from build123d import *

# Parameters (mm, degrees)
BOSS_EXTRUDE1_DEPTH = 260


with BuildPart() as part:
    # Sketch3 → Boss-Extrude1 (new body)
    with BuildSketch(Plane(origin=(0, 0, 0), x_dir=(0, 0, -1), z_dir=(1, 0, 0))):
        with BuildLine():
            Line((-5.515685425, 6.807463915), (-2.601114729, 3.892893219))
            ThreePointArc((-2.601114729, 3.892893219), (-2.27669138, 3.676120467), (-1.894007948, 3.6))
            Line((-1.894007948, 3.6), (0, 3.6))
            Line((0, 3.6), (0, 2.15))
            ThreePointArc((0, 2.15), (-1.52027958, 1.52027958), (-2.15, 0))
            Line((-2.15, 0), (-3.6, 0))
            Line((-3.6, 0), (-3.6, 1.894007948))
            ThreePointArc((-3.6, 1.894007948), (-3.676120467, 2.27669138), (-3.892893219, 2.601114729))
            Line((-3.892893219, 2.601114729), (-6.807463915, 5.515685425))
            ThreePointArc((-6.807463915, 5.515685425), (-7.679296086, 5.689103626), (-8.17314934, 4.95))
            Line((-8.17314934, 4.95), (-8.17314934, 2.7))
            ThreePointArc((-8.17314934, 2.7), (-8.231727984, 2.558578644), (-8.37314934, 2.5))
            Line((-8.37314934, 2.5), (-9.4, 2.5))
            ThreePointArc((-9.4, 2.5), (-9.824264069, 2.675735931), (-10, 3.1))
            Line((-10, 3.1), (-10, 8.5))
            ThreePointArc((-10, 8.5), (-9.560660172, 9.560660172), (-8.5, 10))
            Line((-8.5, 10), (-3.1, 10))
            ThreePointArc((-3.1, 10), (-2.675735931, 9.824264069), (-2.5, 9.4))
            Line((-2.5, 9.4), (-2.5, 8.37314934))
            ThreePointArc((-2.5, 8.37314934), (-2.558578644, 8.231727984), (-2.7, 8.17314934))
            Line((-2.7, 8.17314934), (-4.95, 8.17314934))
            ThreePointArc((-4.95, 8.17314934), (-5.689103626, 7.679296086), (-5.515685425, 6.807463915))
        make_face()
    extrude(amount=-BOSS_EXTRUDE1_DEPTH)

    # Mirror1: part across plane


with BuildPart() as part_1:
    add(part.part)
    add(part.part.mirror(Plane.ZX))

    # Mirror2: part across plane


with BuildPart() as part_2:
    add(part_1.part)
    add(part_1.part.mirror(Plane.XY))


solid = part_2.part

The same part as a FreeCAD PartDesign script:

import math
import FreeCAD as App
import Part
import Sketcher
from FreeCAD import Vector
Q = App.Units.Quantity

doc = App.newDocument("Part")
body = doc.addObject("PartDesign::Body", "Body")

# Sketch on YZ plane
sketch1 = body.newObject("Sketcher::SketchObject", "Sketch")
sketch1.AttachmentSupport = (doc.getObject("YZ_Plane"), [""])
sketch1.MapMode = "FlatFace"
sketch1.addGeometry([
    Part.LineSegment(Vector(3.89, 2.6, 0), Vector(6.81, 5.52, 0)),  # 0
    Part.ArcOfCircle(Part.Circle(Vector(7.37, 4.95, 0), Vector(0, 0, 1), 0.8), math.radians(0), math.radians(135)),  # 1
    Part.LineSegment(Vector(8.17, 4.95, 0), Vector(8.17, 2.7, 0)),  # 2
    Part.ArcOfCircle(Part.Circle(Vector(8.37, 2.7, 0), Vector(0, 0, 1), 0.2), math.radians(-180), math.radians(-90)),  # 3
    Part.LineSegment(Vector(8.37, 2.5, 0), Vector(9.4, 2.5, 0)),  # 4
    Part.ArcOfCircle(Part.Circle(Vector(9.4, 3.1, 0), Vector(0, 0, 1), 0.6), math.radians(-90), math.radians(0)),  # 5
    Part.LineSegment(Vector(10, 3.1, 0), Vector(10, 8.5, 0)),  # 6
    Part.ArcOfCircle(Part.Circle(Vector(8.5, 8.5, 0), Vector(0, 0, 1), 1.5), math.radians(0), math.radians(90)),  # 7
    Part.LineSegment(Vector(8.5, 10, 0), Vector(3.1, 10, 0)),  # 8
    Part.ArcOfCircle(Part.Circle(Vector(3.1, 9.4, 0), Vector(0, 0, 1), 0.6), math.radians(90), math.radians(180)),  # 9
    Part.LineSegment(Vector(2.5, 9.4, 0), Vector(2.5, 8.37, 0)),  # 10
    Part.ArcOfCircle(Part.Circle(Vector(2.7, 8.37, 0), Vector(0, 0, 1), 0.2), math.radians(-180), math.radians(-90)),  # 11
    Part.LineSegment(Vector(2.7, 8.17, 0), Vector(4.95, 8.17, 0)),  # 12
    Part.ArcOfCircle(Part.Circle(Vector(4.95, 7.37, 0), Vector(0, 0, 1), 0.8), math.radians(-45), math.radians(90)),  # 13
    Part.LineSegment(Vector(5.52, 6.81, 0), Vector(2.6, 3.89, 0)),  # 14
    Part.ArcOfCircle(Part.Circle(Vector(1.89, 4.6, 0), Vector(0, 0, 1), 1), math.radians(-90), math.radians(-45)),  # 15
    Part.LineSegment(Vector(1.89, 3.6, 0), Vector(0, 3.6, 0)),  # 16
    Part.LineSegment(Vector(0, 3.6, 0), Vector(0, 2.15, 0)),  # 17
    Part.ArcOfCircle(Part.Circle(Vector(0, 0, 0), Vector(0, 0, 1), 2.15), math.radians(0), math.radians(90)),  # 18
    Part.LineSegment(Vector(2.15, 0, 0), Vector(3.6, 0, 0)),  # 19
    Part.LineSegment(Vector(3.6, 0, 0), Vector(3.6, 1.89, 0)),  # 20
    Part.ArcOfCircle(Part.Circle(Vector(4.6, 1.89, 0), Vector(0, 0, 1), 1), math.radians(135), math.radians(180)),  # 21
], False)
sketch1.addConstraint([
    Sketcher.Constraint("Tangent", 0, 2, 1, 2),
    Sketcher.Constraint("Tangent", 1, 1, 2, 1),
    Sketcher.Constraint("Tangent", 2, 2, 3, 1),
    Sketcher.Constraint("Tangent", 3, 2, 4, 1),
    Sketcher.Constraint("Tangent", 4, 2, 5, 1),
    Sketcher.Constraint("Tangent", 5, 2, 6, 1),
    Sketcher.Constraint("Tangent", 6, 2, 7, 1),
    Sketcher.Constraint("Tangent", 7, 2, 8, 1),
    Sketcher.Constraint("Tangent", 8, 2, 9, 1),
    Sketcher.Constraint("Tangent", 9, 2, 10, 1),
    Sketcher.Constraint("Tangent", 10, 2, 11, 1),
    Sketcher.Constraint("Tangent", 11, 2, 12, 1),
    Sketcher.Constraint("Tangent", 12, 2, 13, 2),
    Sketcher.Constraint("Tangent", 13, 1, 14, 1),
    Sketcher.Constraint("Tangent", 14, 2, 15, 2),
    Sketcher.Constraint("Tangent", 15, 1, 16, 1),
    Sketcher.Constraint("Coincident", 16, 2, 17, 1),
    Sketcher.Constraint("Coincident", 17, 2, 18, 2),
    Sketcher.Constraint("Coincident", 18, 1, 19, 1),
    Sketcher.Constraint("Coincident", 19, 2, 20, 1),
    Sketcher.Constraint("Tangent", 20, 2, 21, 2),
    Sketcher.Constraint("Tangent", 21, 1, 0, 1),
    Sketcher.Constraint("Vertical", 2),
    Sketcher.Constraint("Horizontal", 4),
    Sketcher.Constraint("Vertical", 6),
    Sketcher.Constraint("Horizontal", 8),
    Sketcher.Constraint("Vertical", 10),
    Sketcher.Constraint("Horizontal", 12),
    Sketcher.Constraint("Horizontal", 16),
    Sketcher.Constraint("Vertical", 17),
    Sketcher.Constraint("Horizontal", 19),
    Sketcher.Constraint("Vertical", 20),
    Sketcher.Constraint("Coincident", 18, 3, -1, 1),
    Sketcher.Constraint("Equal", 5, 9),
    Sketcher.Constraint("Equal", 3, 11),
    Sketcher.Constraint("Equal", 1, 13),
    Sketcher.Constraint("Equal", 15, 21),
    Sketcher.Constraint("PointOnObject", 16, 2, -2),
    Sketcher.Constraint("PointOnObject", 18, 1, -1),
    Sketcher.Constraint("Parallel", 0, 14),
    Sketcher.Constraint("Equal", 12, 2),
    Sketcher.Constraint("Equal", 8, 6),
    Sketcher.Constraint("Equal", 4, 10),
    Sketcher.Constraint("Equal", 19, 17),
    Sketcher.Constraint("Equal", 16, 20),
    Sketcher.Constraint("Equal", 0, 14),
    Sketcher.Constraint("Radius", 15, Q("1 mm")),
    Sketcher.Constraint("Radius", 1, Q("0.8 mm")),
    Sketcher.Constraint("Radius", 3, Q("0.2 mm")),
    Sketcher.Constraint("Radius", 5, Q("0.6 mm")),
    Sketcher.Constraint("Radius", 7, Q("1.5 mm")),
    Sketcher.Constraint("Radius", 18, Q("2.15 mm")),
    Sketcher.Constraint("DistanceX", 8, 2, 8, 1, Q("5.4 mm")),
    Sketcher.Constraint("DistanceX", -1, 1, 5, 2, Q("10 mm")),
    Sketcher.Constraint("DistanceX", 12, 1, 12, 2, Q("2.25 mm")),
    Sketcher.Constraint("DistanceX", 19, 1, 19, 2, Q("1.45 mm")),
    Sketcher.Constraint("DistanceX", 4, 1, 4, 2, Q("1.026851 mm")),
])
pad1 = body.newObject("PartDesign::Pad", "Pad")
pad1.Profile = sketch1
pad1.Length = 260
pad1.Reversed = True
body2 = doc.addObject("PartDesign::Body", "Body001")
doc.recompute()

body2.BaseFeature = body
doc.recompute()

mirroring = doc.addObject("Part::Mirroring", "Mirroring")
mirroring.Source = body
mirroring.Base = Vector(0, 0, 0)
mirroring.Normal = Vector(0, 1, 0)
body3 = doc.addObject("PartDesign::Body", "Body002")
body3.BaseFeature = mirroring
boolean = body2.newObject("PartDesign::Boolean", "Boolean")
boolean.Type = "Fuse"
boolean.addObjects([body3])
doc.recompute()
body4 = doc.addObject("PartDesign::Body", "Body003")
doc.recompute()

body4.BaseFeature = body2
doc.recompute()

mirroring2 = doc.addObject("Part::Mirroring", "Mirroring001")
mirroring2.Source = body2
mirroring2.Base = Vector(0, 0, 0)
mirroring2.Normal = Vector(0, 0, 1)
body5 = doc.addObject("PartDesign::Body", "Body004")
body5.BaseFeature = mirroring2
boolean2 = body4.newObject("PartDesign::Boolean", "Boolean001")
boolean2.Type = "Fuse"
boolean2.addObjects([body5])
doc.recompute()
mirroring.Visibility = False
mirroring2.Visibility = False

doc.recompute()
